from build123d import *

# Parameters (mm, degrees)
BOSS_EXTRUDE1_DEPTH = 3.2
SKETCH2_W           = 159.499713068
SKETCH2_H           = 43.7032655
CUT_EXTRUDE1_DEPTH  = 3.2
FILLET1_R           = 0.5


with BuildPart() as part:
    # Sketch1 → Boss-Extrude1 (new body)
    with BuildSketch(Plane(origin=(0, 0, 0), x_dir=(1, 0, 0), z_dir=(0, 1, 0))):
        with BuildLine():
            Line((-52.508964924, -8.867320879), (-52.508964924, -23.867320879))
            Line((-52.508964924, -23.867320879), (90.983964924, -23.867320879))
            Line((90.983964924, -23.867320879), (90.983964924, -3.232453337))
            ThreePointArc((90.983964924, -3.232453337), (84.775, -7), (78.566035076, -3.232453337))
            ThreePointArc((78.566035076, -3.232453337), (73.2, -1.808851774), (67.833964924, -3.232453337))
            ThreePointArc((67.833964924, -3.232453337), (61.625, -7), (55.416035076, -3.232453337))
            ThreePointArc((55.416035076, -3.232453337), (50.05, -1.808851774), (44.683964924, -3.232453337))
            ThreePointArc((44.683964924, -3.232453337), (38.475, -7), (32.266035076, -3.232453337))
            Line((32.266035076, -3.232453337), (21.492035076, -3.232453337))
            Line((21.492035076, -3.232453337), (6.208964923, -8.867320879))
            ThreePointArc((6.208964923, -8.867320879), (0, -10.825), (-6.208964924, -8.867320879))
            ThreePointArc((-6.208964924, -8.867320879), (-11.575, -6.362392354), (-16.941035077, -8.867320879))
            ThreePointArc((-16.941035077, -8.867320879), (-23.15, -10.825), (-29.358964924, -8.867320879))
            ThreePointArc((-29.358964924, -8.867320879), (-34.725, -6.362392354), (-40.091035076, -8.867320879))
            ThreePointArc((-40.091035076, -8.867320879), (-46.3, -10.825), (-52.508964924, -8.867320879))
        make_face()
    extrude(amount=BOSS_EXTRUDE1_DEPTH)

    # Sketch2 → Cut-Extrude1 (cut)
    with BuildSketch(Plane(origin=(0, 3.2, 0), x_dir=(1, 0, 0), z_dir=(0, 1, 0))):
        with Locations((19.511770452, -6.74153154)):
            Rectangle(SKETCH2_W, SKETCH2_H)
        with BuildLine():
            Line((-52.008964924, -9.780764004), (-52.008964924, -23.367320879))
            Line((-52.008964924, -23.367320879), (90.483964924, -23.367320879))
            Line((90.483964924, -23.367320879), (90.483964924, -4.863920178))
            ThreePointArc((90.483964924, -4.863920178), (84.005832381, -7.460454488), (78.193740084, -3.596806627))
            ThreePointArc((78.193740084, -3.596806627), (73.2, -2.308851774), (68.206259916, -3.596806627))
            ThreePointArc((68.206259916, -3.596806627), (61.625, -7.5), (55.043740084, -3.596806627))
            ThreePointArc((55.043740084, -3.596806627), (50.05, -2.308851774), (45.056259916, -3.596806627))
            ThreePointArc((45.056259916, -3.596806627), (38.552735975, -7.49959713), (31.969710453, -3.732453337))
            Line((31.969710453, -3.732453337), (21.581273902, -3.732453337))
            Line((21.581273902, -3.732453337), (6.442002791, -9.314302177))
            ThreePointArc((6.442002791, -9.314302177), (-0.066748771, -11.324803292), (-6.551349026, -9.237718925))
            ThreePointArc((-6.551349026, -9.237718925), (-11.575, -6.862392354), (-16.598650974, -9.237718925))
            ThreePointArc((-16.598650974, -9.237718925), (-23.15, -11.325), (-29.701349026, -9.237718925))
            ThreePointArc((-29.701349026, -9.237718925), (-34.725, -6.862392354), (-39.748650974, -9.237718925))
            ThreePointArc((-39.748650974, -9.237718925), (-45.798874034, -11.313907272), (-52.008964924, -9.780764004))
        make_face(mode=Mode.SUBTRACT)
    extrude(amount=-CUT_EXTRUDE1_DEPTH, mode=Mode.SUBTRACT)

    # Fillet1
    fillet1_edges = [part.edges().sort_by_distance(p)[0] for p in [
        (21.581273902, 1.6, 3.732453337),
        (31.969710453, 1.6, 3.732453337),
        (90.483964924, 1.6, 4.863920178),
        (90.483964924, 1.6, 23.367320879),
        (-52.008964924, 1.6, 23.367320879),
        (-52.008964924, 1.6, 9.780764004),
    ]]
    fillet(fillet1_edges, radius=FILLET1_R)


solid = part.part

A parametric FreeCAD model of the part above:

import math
import FreeCAD as App
import Part
import Sketcher


def edges_at(feature, points):
    """Names of the edges that pass closest to the given points."""
    edges = feature.Shape.Edges
    near = lambda p: min(range(len(edges)), key=lambda i: edges[i].distToShape(Part.Vertex(*p))[0])
    return sorted({f"Edge{near(p) + 1}" for p in points})


def add_polygon(sketch, points):
    """Adds a closed chain of lines whose ends are joined by coincident constraints."""
    first, n = sketch.GeometryCount, len(points)
    for a, b in zip(points, points[1:] + points[:1]):
        sketch.addGeometry(Part.LineSegment(App.Vector(*a, 0), App.Vector(*b, 0)), False)
    for i in range(n):
        sketch.addConstraint(Sketcher.Constraint("Coincident", first + i, 2, first + (i + 1) % n, 1))

doc = App.newDocument("Part")
body = doc.addObject("PartDesign::Body", "Body")

# Sketch on XZ plane
sketch1 = body.newObject("Sketcher::SketchObject", "Sketch")
sketch1.AttachmentSupport = (doc.getObject("XZ_Plane"), [""])
sketch1.MapMode = "FlatFace"
sketch1.addGeometry([
    Part.LineSegment(App.Vector(-53, 9, 0), App.Vector(-53, 24, 0)),  # 0
    Part.LineSegment(App.Vector(-53, 24, 0), App.Vector(91, 24, 0)),  # 1
    Part.LineSegment(App.Vector(91, 24, 0), App.Vector(91, 3, 0)),  # 2
    Part.ArcOfCircle(Part.Circle(App.Vector(85, 0, 0), App.Vector(0, 0, 1), 7), math.radians(28), math.radians(152)),  # 3
    Part.ArcOfCircle(Part.Circle(App.Vector(73, 13, 0), App.Vector(0, 0, 1), 11), math.radians(-120), math.radians(-60)),  # 4
    Part.ArcOfCircle(Part.Circle(App.Vector(62, 0, 0), App.Vector(0, 0, 1), 7), math.radians(28), math.radians(152)),  # 5
    Part.ArcOfCircle(Part.Circle(App.Vector(50, 13, 0), App.Vector(0, 0, 1), 11), math.radians(-120), math.radians(-60)),  # 6
    Part.ArcOfCircle(Part.Circle(App.Vector(38, 0, 0), App.Vector(0, 0, 1), 7), math.radians(28), math.radians(152)),  # 7
    Part.LineSegment(App.Vector(32, 3, 0), App.Vector(21, 3, 0)),  # 8
    Part.LineSegment(App.Vector(21, 3, 0), App.Vector(6, 9, 0)),  # 9
    Part.ArcOfCircle(Part.Circle(App.Vector(0, 0, 0), App.Vector(0, 0, 1), 11), math.radians(55), math.radians(125)),  # 10
    Part.ArcOfCircle(Part.Circle(App.Vector(-12, 13, 0), App.Vector(0, 0, 1), 7), math.radians(-140), math.radians(-40)),  # 11
    Part.ArcOfCircle(Part.Circle(App.Vector(-23, 0, 0), App.Vector(0, 0, 1), 11), math.radians(55), math.radians(125)),  # 12
    Part.ArcOfCircle(Part.Circle(App.Vector(-35, 13, 0), App.Vector(0, 0, 1), 7), math.radians(-140), math.radians(-40)),  # 13
    Part.ArcOfCircle(Part.Circle(App.Vector(-46, 0, 0), App.Vector(0, 0, 1), 11), math.radians(55), math.radians(125)),  # 14
], False)
sketch1.addConstraint([
    Sketcher.Constraint("Coincident", 0, 2, 1, 1),
    Sketcher.Constraint("Coincident", 1, 2, 2, 1),
    Sketcher.Constraint("Coincident", 2, 2, 3, 1),
    Sketcher.Constraint("Coincident", 3, 2, 4, 2),
    Sketcher.Constraint("Coincident", 4, 1, 5, 1),
    Sketcher.Constraint("Coincident", 5, 2, 6, 2),
    Sketcher.Constraint("Coincident", 6, 1, 7, 1),
    Sketcher.Constraint("Coincident", 7, 2, 8, 1),
    Sketcher.Constraint("Coincident", 8, 2, 9, 1),
    Sketcher.Constraint("Coincident", 9, 2, 10, 1),
    Sketcher.Constraint("Coincident", 10, 2, 11, 2),
    Sketcher.Constraint("Coincident", 11, 1, 12, 1),
    Sketcher.Constraint("Coincident", 12, 2, 13, 2),
    Sketcher.Constraint("Coincident", 13, 1, 14, 1),
    Sketcher.Constraint("Coincident", 14, 2, 0, 1),
    Sketcher.Constraint("Vertical", 0),
    Sketcher.Constraint("Horizontal", 1),
    Sketcher.Constraint("Vertical", 2),
    Sketcher.Constraint("Horizontal", 8),
    Sketcher.Constraint("Coincident", 10, 3, -1, 1),
    Sketcher.Constraint("Equal", 3, 5),
    Sketcher.Constraint("Equal", 4, 6),
    Sketcher.Constraint("Equal", 5, 7),
    Sketcher.Constraint("Equal", 6, 10),
    Sketcher.Constraint("Equal", 7, 11),
    Sketcher.Constraint("Equal", 10, 12),
    Sketcher.Constraint("Equal", 11, 13),
    Sketcher.Constraint("Equal", 12, 14),
    Sketcher.Constraint("PointOnObject", 3, 3, -1),
    Sketcher.Constraint("PointOnObject", 5, 3, -1),
    Sketcher.Constraint("PointOnObject", 7, 3, -1),
    Sketcher.Constraint("PointOnObject", 12, 3, -1),
    Sketcher.Constraint("PointOnObject", 14, 3, -1),
    Sketcher.Constraint("Horizontal", 4, 3, 6, 3),
    Sketcher.Constraint("Horizontal", 11, 3, 13, 3),
    Sketcher.Constraint("Horizontal", 2, 2, 3, 2),
    Sketcher.Constraint("Horizontal", 3, 2, 4, 1),
    Sketcher.Constraint("Horizontal", 4, 1, 5, 2),
    Sketcher.Constraint("Horizontal", 5, 2, 6, 1),
    Sketcher.Constraint("Horizontal", 6, 1, 7, 2),
    Sketcher.Constraint("Horizontal", 9, 2, 10, 2),
    Sketcher.Constraint("Horizontal", 10, 2, 11, 1),
    Sketcher.Constraint("Horizontal", 11, 1, 12, 2),
    Sketcher.Constraint("Horizontal", 12, 2, 13, 1),
    Sketcher.Constraint("Horizontal", 13, 1, 14, 2),
    Sketcher.Constraint("Radius", 3, 7.0),
    Sketcher.Constraint("DistanceY", 0, 1, 0, 2, 15.0),
    Sketcher.Constraint("Radius", 4, 10.825),
    Sketcher.Constraint("DistanceX", -1, 1, 4, 3, 73.2),
    Sketcher.Constraint("DistanceX", 14, 3, -1, 1, 46.3),
    Sketcher.Constraint("DistanceX", 7, 3, 3, 3, 46.3),
    Sketcher.Constraint("DistanceX", 8, 2, 8, 1, 10.774),
    Sketcher.Constraint("DistanceX", 10, 2, 8, 2, 27.701),
    Sketcher.Constraint("DistanceX", 1, 1, 1, 2, 143.49293),
])
pad1 = body.newObject("PartDesign::Pad", "Pad")
pad1.Profile = sketch1
pad1.Length = 3.2
pad1.Reversed = True

# Sketch on XZ plane
sketch2 = body.newObject("Sketcher::SketchObject", "Sketch001")
sketch2.AttachmentSupport = (doc.getObject("XZ_Plane"), [""])
sketch2.MapMode = "FlatFace"
sketch2.AttachmentOffset = App.Placement(App.Vector(0, 0, -3.2), App.Rotation())
add_polygon(sketch2, [(-60, -15), (-60, 29), (99, 29), (99, -15)])  # lines 0-3
sketch2.addGeometry(Part.LineSegment(App.Vector(-52, 23, 0), App.Vector(-52, 10, 0)), False)  # 4
sketch2.addGeometry(Part.ArcOfCircle(Part.Circle(App.Vector(-46, 0, 0), App.Vector(0, 0, 1), 11), math.radians(55), math.radians(120)), False)  # 5
sketch2.addGeometry(Part.ArcOfCircle(Part.Circle(App.Vector(-35, 13, 0), App.Vector(0, 0, 1), 7), math.radians(-141), math.radians(-39)), False)  # 6
sketch2.addGeometry(Part.ArcOfCircle(Part.Circle(App.Vector(-23, 0, 0), App.Vector(0, 0, 1), 11), math.radians(55), math.radians(125)), False)  # 7
sketch2.addGeometry(Part.ArcOfCircle(Part.Circle(App.Vector(-12, 13, 0), App.Vector(0, 0, 1), 7), math.radians(-141), math.radians(-39)), False)  # 8
sketch2.addGeometry(Part.ArcOfCircle(Part.Circle(App.Vector(0, 0, 0), App.Vector(0, 0, 1), 11), math.radians(55), math.radians(125)), False)  # 9
sketch2.addGeometry(Part.LineSegment(App.Vector(6, 9, 0), App.Vector(22, 4, 0)), False)  # 10
sketch2.addGeometry(Part.LineSegment(App.Vector(22, 4, 0), App.Vector(32, 4, 0)), False)  # 11
sketch2.addGeometry(Part.ArcOfCircle(Part.Circle(App.Vector(38, 0, 0), App.Vector(0, 0, 1), 8), math.radians(29), math.radians(150)), False)  # 12
sketch2.addGeometry(Part.ArcOfCircle(Part.Circle(App.Vector(50, 13, 0), App.Vector(0, 0, 1), 10), math.radians(-119), math.radians(-61)), False)  # 13
sketch2.addGeometry(Part.ArcOfCircle(Part.Circle(App.Vector(62, 0, 0), App.Vector(0, 0, 1), 7), math.radians(29), math.radians(151)), False)  # 14
sketch2.addGeometry(Part.ArcOfCircle(Part.Circle(App.Vector(73, 13, 0), App.Vector(0, 0, 1), 10), math.radians(-119), math.radians(-61)), False)  # 15
sketch2.addGeometry(Part.ArcOfCircle(Part.Circle(App.Vector(85, 0, 0), App.Vector(0, 0, 1), 8), math.radians(40), math.radians(151)), False)  # 16
sketch2.addGeometry(Part.LineSegment(App.Vector(90, 5, 0), App.Vector(90, 23, 0)), False)  # 17
sketch2.addGeometry(Part.LineSegment(App.Vector(90, 23, 0), App.Vector(-52, 23, 0)), False)  # 18
sketch2.addConstraint([
    Sketcher.Constraint("Coincident", 4, 2, 5, 2),
    Sketcher.Constraint("Coincident", 5, 1, 6, 1),
    Sketcher.Constraint("Coincident", 6, 2, 7, 2),
    Sketcher.Constraint("Coincident", 7, 1, 8, 1),
    Sketcher.Constraint("Coincident", 8, 2, 9, 2),
    Sketcher.Constraint("Coincident", 9, 1, 10, 1),
    Sketcher.Constraint("Coincident", 10, 2, 11, 1),
    Sketcher.Constraint("Coincident", 11, 2, 12, 2),
    Sketcher.Constraint("Coincident", 12, 1, 13, 1),
    Sketcher.Constraint("Coincident", 13, 2, 14, 2),
    Sketcher.Constraint("Coincident", 14, 1, 15, 1),
    Sketcher.Constraint("Coincident", 15, 2, 16, 2),
    Sketcher.Constraint("Coincident", 16, 1, 17, 1),
    Sketcher.Constraint("Coincident", 17, 2, 18, 1),
    Sketcher.Constraint("Coincident", 18, 2, 4, 1),
    Sketcher.Constraint("Vertical", 0),
    Sketcher.Constraint("Horizontal", 1),
    Sketcher.Constraint("Vertical", 2),
    Sketcher.Constraint("Horizontal", 3),
    Sketcher.Constraint("Vertical", 4),
    Sketcher.Constraint("Horizontal", 11),
    Sketcher.Constraint("Vertical", 17),
    Sketcher.Constraint("Horizontal", 18),
    Sketcher.Constraint("Coincident", 9, 3, -1, 1),
    Sketcher.Constraint("Equal", 5, 7),
    Sketcher.Constraint("Equal", 6, 8),
    Sketcher.Constraint("Equal", 7, 9),
    Sketcher.Constraint("Equal", 12, 14),
    Sketcher.Constraint("Equal", 13, 15),
    Sketcher.Constraint("Equal", 14, 16),
    Sketcher.Constraint("PointOnObject", 5, 3, -1),
    Sketcher.Constraint("PointOnObject", 7, 3, -1),
    Sketcher.Constraint("PointOnObject", 12, 3, -1),
    Sketcher.Constraint("PointOnObject", 14, 3, -1),
    Sketcher.Constraint("PointOnObject", 16, 3, -1),
    Sketcher.Constraint("Horizontal", 6, 3, 8, 3),
    Sketcher.Constraint("Horizontal", 13, 3, 15, 3),
    Sketcher.Constraint("Horizontal", 5, 1, 6, 2),
    Sketcher.Constraint("Horizontal", 6, 2, 7, 1),
    Sketcher.Constraint("Horizontal", 7, 1, 8, 2),
    Sketcher.Constraint("Horizontal", 12, 1, 13, 2),
    Sketcher.Constraint("Horizontal", 13, 2, 14, 1),
    Sketcher.Constraint("Horizontal", 14, 1, 15, 2),
    Sketcher.Constraint("Radius", 6, 6.5),
    Sketcher.Constraint("Radius", 12, 7.5),
    Sketcher.Constraint("Radius", 5, 11.325),
    Sketcher.Constraint("Radius", 13, 10.325),
    Sketcher.Constraint("DistanceX", 5, 3, -1, 1, 46.3),
    Sketcher.Constraint("DistanceX", -1, 1, 15, 3, 73.2),
    Sketcher.Constraint("DistanceX", 6, 3, 12, 3, 73.2),
    Sketcher.Constraint("DistanceY", 17, 1, 17, 2, 18.503401),
    Sketcher.Constraint("DistanceX", 18, 2, 18, 1, 142.49293),
    Sketcher.Constraint("DistanceY", 2, 2, -1, 1, 15.110101),
    Sketcher.Constraint("DistanceY", 4, 2, 0, 2, 18.8124),
    Sketcher.Constraint("DistanceX", 5, 1, 6, 2, 10.047302),
    Sketcher.Constraint("DistanceY", 10, 2, 13, 3, 8.901398),
    Sketcher.Constraint("DistanceY", 5, 1, 18, 2, 14.129602),
    Sketcher.Constraint("DistanceX", 1, 1, 1, 2, 159.499713),
    Sketcher.Constraint("DistanceX", 11, 1, 11, 2, 10.388437),
    Sketcher.Constraint("DistanceY", -1, 1, 13, 3, 12.633852),
    Sketcher.Constraint("DistanceX", 0, 2, 4, 2, 8.229121),
    Sketcher.Constraint("DistanceX", 8, 2, 9, 1, 12.993352),
])
pocket1 = body.newObject("PartDesign::Pocket", "Pocket")
pocket1.Profile = sketch2
pocket1.Length = 3.2
pocket1.Reversed = True
doc.recompute()

fillet = body.newObject("PartDesign::Fillet", "Fillet")
fillet.Base = (pocket1, edges_at(pocket1, [
    (21.581, 1.6, 3.732),
    (31.97, 1.6, 3.732),
    (90.484, 1.6, 4.864),
    (90.484, 1.6, 23.367),
    (-52.009, 1.6, 23.367),
    (-52.009, 1.6, 9.781),
]))
fillet.Radius = 0.5

doc.recompute()
